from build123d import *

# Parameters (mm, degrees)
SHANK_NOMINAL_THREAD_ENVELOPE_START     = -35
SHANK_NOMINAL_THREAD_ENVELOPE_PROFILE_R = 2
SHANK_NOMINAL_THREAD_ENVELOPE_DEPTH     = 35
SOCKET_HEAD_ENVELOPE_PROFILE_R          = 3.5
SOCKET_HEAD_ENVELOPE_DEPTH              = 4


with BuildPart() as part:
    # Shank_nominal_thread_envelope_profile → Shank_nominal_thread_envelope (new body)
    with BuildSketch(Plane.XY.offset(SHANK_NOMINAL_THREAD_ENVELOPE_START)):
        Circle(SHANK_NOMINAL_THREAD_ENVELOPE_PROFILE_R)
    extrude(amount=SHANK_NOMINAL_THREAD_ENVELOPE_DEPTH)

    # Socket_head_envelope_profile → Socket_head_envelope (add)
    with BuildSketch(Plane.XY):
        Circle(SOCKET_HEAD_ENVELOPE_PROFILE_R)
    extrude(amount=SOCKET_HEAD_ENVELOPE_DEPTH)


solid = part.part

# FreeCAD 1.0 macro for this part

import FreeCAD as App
import Part
import Sketcher
from FreeCAD import Vector

doc = App.newDocument("Part")
body = doc.addObject("PartDesign::Body", "Body")

sketch1 = body.newObject("Sketcher::SketchObject", "Sketch")
sketch1.AttachmentSupport = (doc.getObject("XY_Plane"), [""])
sketch1.MapMode = "FlatFace"
sketch1.AttachmentOffset = App.Placement(Vector(0, 0, -35), App.Rotation())
sketch1.addGeometry(Part.Circle(Vector(0, 0, 0), Vector(0, 0, 1), 2), False)
sketch1.addConstraint([
    Sketcher.Constraint("Coincident", 0, 3, -1, 1),
    Sketcher.Constraint("Diameter", 0, 4.0),
])
pad1 = body.newObject("PartDesign::Pad", "Pad")
pad1.Profile = sketch1
pad1.Length = 35

sketch2 = body.newObject("Sketcher::SketchObject", "Sketch001")
sketch2.AttachmentSupport = (doc.getObject("XY_Plane"), [""])
sketch2.MapMode = "FlatFace"
sketch2.addGeometry(Part.Circle(Vector(0, 0, 0), Vector(0, 0, 1), 3.5), False)
sketch2.addConstraint([
    Sketcher.Constraint("Coincident", 0, 3, -1, 1),
    Sketcher.Constraint("Diameter", 0, 7.0),
])
pad2 = body.newObject("PartDesign::Pad", "Pad001")
pad2.Profile = sketch2
pad2.Length = 4

doc.recompute()
